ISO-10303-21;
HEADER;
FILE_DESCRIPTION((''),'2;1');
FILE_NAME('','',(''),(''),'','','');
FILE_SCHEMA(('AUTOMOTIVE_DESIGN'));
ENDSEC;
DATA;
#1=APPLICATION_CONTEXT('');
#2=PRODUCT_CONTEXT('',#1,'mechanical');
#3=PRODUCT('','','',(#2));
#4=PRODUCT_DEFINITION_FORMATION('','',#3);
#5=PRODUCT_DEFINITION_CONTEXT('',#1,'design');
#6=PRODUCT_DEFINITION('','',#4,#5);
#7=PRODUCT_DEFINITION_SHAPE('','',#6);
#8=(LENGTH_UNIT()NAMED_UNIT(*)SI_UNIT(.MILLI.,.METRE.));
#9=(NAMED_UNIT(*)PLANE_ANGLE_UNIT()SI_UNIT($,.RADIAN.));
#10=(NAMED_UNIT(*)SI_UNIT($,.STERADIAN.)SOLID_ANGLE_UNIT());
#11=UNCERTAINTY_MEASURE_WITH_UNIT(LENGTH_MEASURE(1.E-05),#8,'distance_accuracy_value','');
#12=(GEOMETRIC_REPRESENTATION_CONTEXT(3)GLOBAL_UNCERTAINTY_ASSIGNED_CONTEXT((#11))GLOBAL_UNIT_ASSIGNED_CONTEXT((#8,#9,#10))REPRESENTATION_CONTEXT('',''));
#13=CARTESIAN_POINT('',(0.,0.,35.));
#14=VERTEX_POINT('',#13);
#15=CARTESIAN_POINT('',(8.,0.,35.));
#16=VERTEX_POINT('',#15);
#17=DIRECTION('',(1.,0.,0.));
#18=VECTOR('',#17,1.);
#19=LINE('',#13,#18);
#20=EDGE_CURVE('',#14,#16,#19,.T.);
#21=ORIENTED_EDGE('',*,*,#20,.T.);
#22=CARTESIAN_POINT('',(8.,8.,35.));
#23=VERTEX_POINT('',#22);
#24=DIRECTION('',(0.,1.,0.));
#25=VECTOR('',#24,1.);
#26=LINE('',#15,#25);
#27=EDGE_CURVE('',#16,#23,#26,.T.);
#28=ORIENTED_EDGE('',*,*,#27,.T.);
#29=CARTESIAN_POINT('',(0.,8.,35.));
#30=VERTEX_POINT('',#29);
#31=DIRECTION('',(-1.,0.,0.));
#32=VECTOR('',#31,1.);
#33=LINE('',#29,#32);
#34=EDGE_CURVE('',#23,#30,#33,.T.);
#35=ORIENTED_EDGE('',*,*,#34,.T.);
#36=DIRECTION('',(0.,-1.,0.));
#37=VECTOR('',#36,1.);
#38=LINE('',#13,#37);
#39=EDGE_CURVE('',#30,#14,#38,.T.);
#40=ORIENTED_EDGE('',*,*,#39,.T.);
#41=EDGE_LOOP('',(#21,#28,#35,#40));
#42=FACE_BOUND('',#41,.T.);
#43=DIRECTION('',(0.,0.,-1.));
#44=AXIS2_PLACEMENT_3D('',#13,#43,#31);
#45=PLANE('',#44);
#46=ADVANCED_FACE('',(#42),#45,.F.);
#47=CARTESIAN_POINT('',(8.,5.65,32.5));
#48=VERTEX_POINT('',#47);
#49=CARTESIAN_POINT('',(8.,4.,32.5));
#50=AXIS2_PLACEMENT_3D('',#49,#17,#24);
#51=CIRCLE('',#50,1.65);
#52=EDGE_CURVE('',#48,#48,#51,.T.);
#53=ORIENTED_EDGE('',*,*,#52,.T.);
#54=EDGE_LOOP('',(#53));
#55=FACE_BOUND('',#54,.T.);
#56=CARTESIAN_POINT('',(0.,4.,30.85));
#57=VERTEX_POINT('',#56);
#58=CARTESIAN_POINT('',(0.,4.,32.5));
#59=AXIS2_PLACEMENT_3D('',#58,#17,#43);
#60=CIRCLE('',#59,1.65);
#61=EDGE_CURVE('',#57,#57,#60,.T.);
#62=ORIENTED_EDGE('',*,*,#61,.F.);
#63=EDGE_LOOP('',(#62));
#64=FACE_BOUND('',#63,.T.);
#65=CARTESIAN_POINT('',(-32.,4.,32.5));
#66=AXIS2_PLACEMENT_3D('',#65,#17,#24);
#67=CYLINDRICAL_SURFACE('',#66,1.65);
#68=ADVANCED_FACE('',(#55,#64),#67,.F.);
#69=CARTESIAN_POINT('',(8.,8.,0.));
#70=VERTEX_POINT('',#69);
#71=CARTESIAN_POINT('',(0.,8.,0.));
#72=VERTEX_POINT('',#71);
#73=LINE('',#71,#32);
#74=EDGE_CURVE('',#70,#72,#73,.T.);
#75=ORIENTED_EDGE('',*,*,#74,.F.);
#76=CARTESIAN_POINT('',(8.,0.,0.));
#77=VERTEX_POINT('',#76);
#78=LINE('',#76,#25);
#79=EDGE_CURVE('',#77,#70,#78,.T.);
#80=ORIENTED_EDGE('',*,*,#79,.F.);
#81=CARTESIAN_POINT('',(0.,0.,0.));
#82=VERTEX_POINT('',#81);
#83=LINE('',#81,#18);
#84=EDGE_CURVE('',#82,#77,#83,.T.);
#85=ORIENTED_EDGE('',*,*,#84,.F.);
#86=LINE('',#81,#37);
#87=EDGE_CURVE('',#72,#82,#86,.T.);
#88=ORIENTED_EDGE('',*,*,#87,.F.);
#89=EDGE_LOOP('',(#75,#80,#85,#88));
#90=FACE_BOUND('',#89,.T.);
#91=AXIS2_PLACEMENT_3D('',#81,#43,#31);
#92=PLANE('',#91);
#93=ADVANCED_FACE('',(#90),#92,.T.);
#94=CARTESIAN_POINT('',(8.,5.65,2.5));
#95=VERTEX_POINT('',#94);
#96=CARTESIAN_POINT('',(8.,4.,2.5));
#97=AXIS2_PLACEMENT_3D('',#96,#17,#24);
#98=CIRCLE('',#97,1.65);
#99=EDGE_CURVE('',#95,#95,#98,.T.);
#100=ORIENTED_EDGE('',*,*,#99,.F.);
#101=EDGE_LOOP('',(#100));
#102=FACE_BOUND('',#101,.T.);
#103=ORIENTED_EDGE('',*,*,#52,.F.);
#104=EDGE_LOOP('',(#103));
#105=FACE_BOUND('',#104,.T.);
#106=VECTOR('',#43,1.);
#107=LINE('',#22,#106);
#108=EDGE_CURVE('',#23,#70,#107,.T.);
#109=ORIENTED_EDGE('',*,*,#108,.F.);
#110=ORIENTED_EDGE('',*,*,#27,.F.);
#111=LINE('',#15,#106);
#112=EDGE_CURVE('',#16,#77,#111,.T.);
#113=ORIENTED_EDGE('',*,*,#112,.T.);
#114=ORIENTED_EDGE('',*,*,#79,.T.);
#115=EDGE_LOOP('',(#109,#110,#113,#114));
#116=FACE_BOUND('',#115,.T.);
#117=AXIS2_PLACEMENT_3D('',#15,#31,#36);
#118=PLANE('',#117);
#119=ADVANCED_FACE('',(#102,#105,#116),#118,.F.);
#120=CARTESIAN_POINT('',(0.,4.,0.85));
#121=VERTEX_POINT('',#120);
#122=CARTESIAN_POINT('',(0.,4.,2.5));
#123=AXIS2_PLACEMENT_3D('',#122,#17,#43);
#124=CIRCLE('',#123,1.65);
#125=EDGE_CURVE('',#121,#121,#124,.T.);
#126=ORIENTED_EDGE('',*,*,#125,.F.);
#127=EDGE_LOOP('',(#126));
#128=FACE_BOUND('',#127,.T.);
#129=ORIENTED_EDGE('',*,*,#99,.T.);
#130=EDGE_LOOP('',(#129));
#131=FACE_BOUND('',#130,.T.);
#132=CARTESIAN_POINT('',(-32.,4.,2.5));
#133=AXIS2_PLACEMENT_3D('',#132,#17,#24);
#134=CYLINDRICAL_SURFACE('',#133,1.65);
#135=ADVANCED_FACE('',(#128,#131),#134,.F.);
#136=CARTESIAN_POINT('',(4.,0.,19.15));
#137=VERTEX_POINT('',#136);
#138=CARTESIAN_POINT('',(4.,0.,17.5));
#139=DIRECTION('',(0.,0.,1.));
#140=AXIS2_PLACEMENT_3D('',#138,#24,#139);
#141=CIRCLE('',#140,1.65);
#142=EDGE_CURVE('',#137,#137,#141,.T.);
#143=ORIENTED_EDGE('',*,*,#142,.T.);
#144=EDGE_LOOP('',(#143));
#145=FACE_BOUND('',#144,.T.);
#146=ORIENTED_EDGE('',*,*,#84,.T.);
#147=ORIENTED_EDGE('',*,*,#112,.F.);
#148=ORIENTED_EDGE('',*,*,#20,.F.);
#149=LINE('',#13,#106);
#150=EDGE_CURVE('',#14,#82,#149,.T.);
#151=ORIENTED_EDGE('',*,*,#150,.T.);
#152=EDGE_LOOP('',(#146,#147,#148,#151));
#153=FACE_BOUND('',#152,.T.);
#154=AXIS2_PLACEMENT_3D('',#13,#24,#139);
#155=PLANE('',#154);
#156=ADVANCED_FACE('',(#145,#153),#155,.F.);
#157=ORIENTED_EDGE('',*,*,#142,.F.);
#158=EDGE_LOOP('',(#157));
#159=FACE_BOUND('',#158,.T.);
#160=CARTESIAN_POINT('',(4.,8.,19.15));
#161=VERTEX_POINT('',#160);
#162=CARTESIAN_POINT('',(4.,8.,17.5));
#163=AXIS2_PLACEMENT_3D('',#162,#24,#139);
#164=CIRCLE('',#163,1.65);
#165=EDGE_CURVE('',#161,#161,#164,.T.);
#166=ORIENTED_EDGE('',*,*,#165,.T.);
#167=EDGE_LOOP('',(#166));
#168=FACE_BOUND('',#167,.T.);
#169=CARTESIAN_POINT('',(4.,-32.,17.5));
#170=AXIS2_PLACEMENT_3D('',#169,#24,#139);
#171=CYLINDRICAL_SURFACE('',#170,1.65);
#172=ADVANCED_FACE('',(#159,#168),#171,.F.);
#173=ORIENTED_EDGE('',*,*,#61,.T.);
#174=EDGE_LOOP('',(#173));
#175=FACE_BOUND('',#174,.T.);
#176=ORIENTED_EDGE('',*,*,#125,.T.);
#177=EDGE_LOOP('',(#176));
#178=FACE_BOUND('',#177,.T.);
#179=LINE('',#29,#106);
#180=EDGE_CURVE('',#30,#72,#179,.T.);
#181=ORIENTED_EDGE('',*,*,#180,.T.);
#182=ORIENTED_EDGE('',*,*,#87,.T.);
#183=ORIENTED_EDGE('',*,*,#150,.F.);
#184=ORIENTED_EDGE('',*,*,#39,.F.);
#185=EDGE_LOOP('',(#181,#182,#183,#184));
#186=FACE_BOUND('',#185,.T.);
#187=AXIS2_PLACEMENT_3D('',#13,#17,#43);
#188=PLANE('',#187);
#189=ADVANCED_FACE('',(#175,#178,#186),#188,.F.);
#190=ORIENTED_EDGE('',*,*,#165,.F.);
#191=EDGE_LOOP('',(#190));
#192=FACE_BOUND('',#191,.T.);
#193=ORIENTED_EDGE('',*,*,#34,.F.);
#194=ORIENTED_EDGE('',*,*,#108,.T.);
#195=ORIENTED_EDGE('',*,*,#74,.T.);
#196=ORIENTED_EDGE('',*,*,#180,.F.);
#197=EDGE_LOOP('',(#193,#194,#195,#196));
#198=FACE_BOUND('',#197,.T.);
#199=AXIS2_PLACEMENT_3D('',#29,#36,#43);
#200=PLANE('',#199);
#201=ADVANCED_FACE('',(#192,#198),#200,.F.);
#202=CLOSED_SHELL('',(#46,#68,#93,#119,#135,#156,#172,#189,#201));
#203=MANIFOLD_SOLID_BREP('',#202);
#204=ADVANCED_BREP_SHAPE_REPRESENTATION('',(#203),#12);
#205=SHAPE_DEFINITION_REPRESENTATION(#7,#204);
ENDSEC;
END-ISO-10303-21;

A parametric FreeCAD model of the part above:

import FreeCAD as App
import Part
import Sketcher


def add_polygon(sketch, points):
    """Adds a closed chain of lines whose ends are joined by coincident constraints."""
    first, n = sketch.GeometryCount, len(points)
    for a, b in zip(points, points[1:] + points[:1]):
        sketch.addGeometry(Part.LineSegment(App.Vector(*a, 0), App.Vector(*b, 0)), False)
    for i in range(n):
        sketch.addConstraint(Sketcher.Constraint("Coincident", first + i, 2, first + (i + 1) % n, 1))

doc = App.newDocument("Part")
body = doc.addObject("PartDesign::Body", "Body")

sketch1 = body.newObject("Sketcher::SketchObject", "Sketch")
sketch1.AttachmentSupport = (doc.getObject("XY_Plane"), [""])
sketch1.MapMode = "FlatFace"
add_polygon(sketch1, [(0, 8), (0, 0), (8, 0), (8, 8)])
sketch1.addConstraint([
    Sketcher.Constraint("Vertical", 0),
    Sketcher.Constraint("Horizontal", 1),
    Sketcher.Constraint("Vertical", 2),
    Sketcher.Constraint("Horizontal", 3),
    Sketcher.Constraint("Coincident", 0, 2, -1, 1),
    Sketcher.Constraint("Equal", 3, 0),
    Sketcher.Constraint("DistanceX", 1, 1, 1, 2, 8.0),
])
pad1 = body.newObject("PartDesign::Pad", "Pad")
pad1.Profile = sketch1
pad1.Length = 35

sketch2 = body.newObject("Sketcher::SketchObject", "Sketch001")
sketch2.AttachmentSupport = (doc.getObject("YZ_Plane"), [""])
sketch2.MapMode = "FlatFace"
sketch2.AttachmentOffset = App.Placement(App.Vector(0, 0, 8), App.Rotation())
sketch2.addGeometry([
    Part.Circle(App.Vector(4, 32.5, 0), App.Vector(0, 0, 1), 1.6),
    Part.Circle(App.Vector(4, 2.5, 0), App.Vector(0, 0, 1), 1.6),
], False)
sketch2.addConstraint([
    Sketcher.Constraint("Equal", 0, 1),
    Sketcher.Constraint("Vertical", 0, 3, 1, 3),
    Sketcher.Constraint("Diameter", 0, 3.3),
    Sketcher.Constraint("DistanceX", -1, 1, 0, 3, 4.0),
    Sketcher.Constraint("DistanceY", 1, 3, 0, 3, 30.0),
    Sketcher.Constraint("DistanceY", -1, 1, 0, 3, 32.5),
])
pocket1 = body.newObject("PartDesign::Pocket", "Pocket")
pocket1.Profile = sketch2
pocket1.Length = 40

sketch3 = body.newObject("Sketcher::SketchObject", "Sketch002")
sketch3.AttachmentSupport = (doc.getObject("XZ_Plane"), [""])
sketch3.MapMode = "FlatFace"
sketch3.AttachmentOffset = App.Placement(App.Vector(0, 0, -8), App.Rotation())
sketch3.addGeometry(Part.Circle(App.Vector(4, 17.5, 0), App.Vector(0, 0, 1), 1.6), False)
sketch3.addConstraint([
    Sketcher.Constraint("Diameter", 0, 3.3),
    Sketcher.Constraint("DistanceX", -1, 1, 0, 3, 4.0),
    Sketcher.Constraint("DistanceY", -1, 1, 0, 3, 17.5),
])
pocket2 = body.newObject("PartDesign::Pocket", "Pocket001")
pocket2.Profile = sketch3
pocket2.Length = 40
pocket2.Reversed = True

doc.recompute()
